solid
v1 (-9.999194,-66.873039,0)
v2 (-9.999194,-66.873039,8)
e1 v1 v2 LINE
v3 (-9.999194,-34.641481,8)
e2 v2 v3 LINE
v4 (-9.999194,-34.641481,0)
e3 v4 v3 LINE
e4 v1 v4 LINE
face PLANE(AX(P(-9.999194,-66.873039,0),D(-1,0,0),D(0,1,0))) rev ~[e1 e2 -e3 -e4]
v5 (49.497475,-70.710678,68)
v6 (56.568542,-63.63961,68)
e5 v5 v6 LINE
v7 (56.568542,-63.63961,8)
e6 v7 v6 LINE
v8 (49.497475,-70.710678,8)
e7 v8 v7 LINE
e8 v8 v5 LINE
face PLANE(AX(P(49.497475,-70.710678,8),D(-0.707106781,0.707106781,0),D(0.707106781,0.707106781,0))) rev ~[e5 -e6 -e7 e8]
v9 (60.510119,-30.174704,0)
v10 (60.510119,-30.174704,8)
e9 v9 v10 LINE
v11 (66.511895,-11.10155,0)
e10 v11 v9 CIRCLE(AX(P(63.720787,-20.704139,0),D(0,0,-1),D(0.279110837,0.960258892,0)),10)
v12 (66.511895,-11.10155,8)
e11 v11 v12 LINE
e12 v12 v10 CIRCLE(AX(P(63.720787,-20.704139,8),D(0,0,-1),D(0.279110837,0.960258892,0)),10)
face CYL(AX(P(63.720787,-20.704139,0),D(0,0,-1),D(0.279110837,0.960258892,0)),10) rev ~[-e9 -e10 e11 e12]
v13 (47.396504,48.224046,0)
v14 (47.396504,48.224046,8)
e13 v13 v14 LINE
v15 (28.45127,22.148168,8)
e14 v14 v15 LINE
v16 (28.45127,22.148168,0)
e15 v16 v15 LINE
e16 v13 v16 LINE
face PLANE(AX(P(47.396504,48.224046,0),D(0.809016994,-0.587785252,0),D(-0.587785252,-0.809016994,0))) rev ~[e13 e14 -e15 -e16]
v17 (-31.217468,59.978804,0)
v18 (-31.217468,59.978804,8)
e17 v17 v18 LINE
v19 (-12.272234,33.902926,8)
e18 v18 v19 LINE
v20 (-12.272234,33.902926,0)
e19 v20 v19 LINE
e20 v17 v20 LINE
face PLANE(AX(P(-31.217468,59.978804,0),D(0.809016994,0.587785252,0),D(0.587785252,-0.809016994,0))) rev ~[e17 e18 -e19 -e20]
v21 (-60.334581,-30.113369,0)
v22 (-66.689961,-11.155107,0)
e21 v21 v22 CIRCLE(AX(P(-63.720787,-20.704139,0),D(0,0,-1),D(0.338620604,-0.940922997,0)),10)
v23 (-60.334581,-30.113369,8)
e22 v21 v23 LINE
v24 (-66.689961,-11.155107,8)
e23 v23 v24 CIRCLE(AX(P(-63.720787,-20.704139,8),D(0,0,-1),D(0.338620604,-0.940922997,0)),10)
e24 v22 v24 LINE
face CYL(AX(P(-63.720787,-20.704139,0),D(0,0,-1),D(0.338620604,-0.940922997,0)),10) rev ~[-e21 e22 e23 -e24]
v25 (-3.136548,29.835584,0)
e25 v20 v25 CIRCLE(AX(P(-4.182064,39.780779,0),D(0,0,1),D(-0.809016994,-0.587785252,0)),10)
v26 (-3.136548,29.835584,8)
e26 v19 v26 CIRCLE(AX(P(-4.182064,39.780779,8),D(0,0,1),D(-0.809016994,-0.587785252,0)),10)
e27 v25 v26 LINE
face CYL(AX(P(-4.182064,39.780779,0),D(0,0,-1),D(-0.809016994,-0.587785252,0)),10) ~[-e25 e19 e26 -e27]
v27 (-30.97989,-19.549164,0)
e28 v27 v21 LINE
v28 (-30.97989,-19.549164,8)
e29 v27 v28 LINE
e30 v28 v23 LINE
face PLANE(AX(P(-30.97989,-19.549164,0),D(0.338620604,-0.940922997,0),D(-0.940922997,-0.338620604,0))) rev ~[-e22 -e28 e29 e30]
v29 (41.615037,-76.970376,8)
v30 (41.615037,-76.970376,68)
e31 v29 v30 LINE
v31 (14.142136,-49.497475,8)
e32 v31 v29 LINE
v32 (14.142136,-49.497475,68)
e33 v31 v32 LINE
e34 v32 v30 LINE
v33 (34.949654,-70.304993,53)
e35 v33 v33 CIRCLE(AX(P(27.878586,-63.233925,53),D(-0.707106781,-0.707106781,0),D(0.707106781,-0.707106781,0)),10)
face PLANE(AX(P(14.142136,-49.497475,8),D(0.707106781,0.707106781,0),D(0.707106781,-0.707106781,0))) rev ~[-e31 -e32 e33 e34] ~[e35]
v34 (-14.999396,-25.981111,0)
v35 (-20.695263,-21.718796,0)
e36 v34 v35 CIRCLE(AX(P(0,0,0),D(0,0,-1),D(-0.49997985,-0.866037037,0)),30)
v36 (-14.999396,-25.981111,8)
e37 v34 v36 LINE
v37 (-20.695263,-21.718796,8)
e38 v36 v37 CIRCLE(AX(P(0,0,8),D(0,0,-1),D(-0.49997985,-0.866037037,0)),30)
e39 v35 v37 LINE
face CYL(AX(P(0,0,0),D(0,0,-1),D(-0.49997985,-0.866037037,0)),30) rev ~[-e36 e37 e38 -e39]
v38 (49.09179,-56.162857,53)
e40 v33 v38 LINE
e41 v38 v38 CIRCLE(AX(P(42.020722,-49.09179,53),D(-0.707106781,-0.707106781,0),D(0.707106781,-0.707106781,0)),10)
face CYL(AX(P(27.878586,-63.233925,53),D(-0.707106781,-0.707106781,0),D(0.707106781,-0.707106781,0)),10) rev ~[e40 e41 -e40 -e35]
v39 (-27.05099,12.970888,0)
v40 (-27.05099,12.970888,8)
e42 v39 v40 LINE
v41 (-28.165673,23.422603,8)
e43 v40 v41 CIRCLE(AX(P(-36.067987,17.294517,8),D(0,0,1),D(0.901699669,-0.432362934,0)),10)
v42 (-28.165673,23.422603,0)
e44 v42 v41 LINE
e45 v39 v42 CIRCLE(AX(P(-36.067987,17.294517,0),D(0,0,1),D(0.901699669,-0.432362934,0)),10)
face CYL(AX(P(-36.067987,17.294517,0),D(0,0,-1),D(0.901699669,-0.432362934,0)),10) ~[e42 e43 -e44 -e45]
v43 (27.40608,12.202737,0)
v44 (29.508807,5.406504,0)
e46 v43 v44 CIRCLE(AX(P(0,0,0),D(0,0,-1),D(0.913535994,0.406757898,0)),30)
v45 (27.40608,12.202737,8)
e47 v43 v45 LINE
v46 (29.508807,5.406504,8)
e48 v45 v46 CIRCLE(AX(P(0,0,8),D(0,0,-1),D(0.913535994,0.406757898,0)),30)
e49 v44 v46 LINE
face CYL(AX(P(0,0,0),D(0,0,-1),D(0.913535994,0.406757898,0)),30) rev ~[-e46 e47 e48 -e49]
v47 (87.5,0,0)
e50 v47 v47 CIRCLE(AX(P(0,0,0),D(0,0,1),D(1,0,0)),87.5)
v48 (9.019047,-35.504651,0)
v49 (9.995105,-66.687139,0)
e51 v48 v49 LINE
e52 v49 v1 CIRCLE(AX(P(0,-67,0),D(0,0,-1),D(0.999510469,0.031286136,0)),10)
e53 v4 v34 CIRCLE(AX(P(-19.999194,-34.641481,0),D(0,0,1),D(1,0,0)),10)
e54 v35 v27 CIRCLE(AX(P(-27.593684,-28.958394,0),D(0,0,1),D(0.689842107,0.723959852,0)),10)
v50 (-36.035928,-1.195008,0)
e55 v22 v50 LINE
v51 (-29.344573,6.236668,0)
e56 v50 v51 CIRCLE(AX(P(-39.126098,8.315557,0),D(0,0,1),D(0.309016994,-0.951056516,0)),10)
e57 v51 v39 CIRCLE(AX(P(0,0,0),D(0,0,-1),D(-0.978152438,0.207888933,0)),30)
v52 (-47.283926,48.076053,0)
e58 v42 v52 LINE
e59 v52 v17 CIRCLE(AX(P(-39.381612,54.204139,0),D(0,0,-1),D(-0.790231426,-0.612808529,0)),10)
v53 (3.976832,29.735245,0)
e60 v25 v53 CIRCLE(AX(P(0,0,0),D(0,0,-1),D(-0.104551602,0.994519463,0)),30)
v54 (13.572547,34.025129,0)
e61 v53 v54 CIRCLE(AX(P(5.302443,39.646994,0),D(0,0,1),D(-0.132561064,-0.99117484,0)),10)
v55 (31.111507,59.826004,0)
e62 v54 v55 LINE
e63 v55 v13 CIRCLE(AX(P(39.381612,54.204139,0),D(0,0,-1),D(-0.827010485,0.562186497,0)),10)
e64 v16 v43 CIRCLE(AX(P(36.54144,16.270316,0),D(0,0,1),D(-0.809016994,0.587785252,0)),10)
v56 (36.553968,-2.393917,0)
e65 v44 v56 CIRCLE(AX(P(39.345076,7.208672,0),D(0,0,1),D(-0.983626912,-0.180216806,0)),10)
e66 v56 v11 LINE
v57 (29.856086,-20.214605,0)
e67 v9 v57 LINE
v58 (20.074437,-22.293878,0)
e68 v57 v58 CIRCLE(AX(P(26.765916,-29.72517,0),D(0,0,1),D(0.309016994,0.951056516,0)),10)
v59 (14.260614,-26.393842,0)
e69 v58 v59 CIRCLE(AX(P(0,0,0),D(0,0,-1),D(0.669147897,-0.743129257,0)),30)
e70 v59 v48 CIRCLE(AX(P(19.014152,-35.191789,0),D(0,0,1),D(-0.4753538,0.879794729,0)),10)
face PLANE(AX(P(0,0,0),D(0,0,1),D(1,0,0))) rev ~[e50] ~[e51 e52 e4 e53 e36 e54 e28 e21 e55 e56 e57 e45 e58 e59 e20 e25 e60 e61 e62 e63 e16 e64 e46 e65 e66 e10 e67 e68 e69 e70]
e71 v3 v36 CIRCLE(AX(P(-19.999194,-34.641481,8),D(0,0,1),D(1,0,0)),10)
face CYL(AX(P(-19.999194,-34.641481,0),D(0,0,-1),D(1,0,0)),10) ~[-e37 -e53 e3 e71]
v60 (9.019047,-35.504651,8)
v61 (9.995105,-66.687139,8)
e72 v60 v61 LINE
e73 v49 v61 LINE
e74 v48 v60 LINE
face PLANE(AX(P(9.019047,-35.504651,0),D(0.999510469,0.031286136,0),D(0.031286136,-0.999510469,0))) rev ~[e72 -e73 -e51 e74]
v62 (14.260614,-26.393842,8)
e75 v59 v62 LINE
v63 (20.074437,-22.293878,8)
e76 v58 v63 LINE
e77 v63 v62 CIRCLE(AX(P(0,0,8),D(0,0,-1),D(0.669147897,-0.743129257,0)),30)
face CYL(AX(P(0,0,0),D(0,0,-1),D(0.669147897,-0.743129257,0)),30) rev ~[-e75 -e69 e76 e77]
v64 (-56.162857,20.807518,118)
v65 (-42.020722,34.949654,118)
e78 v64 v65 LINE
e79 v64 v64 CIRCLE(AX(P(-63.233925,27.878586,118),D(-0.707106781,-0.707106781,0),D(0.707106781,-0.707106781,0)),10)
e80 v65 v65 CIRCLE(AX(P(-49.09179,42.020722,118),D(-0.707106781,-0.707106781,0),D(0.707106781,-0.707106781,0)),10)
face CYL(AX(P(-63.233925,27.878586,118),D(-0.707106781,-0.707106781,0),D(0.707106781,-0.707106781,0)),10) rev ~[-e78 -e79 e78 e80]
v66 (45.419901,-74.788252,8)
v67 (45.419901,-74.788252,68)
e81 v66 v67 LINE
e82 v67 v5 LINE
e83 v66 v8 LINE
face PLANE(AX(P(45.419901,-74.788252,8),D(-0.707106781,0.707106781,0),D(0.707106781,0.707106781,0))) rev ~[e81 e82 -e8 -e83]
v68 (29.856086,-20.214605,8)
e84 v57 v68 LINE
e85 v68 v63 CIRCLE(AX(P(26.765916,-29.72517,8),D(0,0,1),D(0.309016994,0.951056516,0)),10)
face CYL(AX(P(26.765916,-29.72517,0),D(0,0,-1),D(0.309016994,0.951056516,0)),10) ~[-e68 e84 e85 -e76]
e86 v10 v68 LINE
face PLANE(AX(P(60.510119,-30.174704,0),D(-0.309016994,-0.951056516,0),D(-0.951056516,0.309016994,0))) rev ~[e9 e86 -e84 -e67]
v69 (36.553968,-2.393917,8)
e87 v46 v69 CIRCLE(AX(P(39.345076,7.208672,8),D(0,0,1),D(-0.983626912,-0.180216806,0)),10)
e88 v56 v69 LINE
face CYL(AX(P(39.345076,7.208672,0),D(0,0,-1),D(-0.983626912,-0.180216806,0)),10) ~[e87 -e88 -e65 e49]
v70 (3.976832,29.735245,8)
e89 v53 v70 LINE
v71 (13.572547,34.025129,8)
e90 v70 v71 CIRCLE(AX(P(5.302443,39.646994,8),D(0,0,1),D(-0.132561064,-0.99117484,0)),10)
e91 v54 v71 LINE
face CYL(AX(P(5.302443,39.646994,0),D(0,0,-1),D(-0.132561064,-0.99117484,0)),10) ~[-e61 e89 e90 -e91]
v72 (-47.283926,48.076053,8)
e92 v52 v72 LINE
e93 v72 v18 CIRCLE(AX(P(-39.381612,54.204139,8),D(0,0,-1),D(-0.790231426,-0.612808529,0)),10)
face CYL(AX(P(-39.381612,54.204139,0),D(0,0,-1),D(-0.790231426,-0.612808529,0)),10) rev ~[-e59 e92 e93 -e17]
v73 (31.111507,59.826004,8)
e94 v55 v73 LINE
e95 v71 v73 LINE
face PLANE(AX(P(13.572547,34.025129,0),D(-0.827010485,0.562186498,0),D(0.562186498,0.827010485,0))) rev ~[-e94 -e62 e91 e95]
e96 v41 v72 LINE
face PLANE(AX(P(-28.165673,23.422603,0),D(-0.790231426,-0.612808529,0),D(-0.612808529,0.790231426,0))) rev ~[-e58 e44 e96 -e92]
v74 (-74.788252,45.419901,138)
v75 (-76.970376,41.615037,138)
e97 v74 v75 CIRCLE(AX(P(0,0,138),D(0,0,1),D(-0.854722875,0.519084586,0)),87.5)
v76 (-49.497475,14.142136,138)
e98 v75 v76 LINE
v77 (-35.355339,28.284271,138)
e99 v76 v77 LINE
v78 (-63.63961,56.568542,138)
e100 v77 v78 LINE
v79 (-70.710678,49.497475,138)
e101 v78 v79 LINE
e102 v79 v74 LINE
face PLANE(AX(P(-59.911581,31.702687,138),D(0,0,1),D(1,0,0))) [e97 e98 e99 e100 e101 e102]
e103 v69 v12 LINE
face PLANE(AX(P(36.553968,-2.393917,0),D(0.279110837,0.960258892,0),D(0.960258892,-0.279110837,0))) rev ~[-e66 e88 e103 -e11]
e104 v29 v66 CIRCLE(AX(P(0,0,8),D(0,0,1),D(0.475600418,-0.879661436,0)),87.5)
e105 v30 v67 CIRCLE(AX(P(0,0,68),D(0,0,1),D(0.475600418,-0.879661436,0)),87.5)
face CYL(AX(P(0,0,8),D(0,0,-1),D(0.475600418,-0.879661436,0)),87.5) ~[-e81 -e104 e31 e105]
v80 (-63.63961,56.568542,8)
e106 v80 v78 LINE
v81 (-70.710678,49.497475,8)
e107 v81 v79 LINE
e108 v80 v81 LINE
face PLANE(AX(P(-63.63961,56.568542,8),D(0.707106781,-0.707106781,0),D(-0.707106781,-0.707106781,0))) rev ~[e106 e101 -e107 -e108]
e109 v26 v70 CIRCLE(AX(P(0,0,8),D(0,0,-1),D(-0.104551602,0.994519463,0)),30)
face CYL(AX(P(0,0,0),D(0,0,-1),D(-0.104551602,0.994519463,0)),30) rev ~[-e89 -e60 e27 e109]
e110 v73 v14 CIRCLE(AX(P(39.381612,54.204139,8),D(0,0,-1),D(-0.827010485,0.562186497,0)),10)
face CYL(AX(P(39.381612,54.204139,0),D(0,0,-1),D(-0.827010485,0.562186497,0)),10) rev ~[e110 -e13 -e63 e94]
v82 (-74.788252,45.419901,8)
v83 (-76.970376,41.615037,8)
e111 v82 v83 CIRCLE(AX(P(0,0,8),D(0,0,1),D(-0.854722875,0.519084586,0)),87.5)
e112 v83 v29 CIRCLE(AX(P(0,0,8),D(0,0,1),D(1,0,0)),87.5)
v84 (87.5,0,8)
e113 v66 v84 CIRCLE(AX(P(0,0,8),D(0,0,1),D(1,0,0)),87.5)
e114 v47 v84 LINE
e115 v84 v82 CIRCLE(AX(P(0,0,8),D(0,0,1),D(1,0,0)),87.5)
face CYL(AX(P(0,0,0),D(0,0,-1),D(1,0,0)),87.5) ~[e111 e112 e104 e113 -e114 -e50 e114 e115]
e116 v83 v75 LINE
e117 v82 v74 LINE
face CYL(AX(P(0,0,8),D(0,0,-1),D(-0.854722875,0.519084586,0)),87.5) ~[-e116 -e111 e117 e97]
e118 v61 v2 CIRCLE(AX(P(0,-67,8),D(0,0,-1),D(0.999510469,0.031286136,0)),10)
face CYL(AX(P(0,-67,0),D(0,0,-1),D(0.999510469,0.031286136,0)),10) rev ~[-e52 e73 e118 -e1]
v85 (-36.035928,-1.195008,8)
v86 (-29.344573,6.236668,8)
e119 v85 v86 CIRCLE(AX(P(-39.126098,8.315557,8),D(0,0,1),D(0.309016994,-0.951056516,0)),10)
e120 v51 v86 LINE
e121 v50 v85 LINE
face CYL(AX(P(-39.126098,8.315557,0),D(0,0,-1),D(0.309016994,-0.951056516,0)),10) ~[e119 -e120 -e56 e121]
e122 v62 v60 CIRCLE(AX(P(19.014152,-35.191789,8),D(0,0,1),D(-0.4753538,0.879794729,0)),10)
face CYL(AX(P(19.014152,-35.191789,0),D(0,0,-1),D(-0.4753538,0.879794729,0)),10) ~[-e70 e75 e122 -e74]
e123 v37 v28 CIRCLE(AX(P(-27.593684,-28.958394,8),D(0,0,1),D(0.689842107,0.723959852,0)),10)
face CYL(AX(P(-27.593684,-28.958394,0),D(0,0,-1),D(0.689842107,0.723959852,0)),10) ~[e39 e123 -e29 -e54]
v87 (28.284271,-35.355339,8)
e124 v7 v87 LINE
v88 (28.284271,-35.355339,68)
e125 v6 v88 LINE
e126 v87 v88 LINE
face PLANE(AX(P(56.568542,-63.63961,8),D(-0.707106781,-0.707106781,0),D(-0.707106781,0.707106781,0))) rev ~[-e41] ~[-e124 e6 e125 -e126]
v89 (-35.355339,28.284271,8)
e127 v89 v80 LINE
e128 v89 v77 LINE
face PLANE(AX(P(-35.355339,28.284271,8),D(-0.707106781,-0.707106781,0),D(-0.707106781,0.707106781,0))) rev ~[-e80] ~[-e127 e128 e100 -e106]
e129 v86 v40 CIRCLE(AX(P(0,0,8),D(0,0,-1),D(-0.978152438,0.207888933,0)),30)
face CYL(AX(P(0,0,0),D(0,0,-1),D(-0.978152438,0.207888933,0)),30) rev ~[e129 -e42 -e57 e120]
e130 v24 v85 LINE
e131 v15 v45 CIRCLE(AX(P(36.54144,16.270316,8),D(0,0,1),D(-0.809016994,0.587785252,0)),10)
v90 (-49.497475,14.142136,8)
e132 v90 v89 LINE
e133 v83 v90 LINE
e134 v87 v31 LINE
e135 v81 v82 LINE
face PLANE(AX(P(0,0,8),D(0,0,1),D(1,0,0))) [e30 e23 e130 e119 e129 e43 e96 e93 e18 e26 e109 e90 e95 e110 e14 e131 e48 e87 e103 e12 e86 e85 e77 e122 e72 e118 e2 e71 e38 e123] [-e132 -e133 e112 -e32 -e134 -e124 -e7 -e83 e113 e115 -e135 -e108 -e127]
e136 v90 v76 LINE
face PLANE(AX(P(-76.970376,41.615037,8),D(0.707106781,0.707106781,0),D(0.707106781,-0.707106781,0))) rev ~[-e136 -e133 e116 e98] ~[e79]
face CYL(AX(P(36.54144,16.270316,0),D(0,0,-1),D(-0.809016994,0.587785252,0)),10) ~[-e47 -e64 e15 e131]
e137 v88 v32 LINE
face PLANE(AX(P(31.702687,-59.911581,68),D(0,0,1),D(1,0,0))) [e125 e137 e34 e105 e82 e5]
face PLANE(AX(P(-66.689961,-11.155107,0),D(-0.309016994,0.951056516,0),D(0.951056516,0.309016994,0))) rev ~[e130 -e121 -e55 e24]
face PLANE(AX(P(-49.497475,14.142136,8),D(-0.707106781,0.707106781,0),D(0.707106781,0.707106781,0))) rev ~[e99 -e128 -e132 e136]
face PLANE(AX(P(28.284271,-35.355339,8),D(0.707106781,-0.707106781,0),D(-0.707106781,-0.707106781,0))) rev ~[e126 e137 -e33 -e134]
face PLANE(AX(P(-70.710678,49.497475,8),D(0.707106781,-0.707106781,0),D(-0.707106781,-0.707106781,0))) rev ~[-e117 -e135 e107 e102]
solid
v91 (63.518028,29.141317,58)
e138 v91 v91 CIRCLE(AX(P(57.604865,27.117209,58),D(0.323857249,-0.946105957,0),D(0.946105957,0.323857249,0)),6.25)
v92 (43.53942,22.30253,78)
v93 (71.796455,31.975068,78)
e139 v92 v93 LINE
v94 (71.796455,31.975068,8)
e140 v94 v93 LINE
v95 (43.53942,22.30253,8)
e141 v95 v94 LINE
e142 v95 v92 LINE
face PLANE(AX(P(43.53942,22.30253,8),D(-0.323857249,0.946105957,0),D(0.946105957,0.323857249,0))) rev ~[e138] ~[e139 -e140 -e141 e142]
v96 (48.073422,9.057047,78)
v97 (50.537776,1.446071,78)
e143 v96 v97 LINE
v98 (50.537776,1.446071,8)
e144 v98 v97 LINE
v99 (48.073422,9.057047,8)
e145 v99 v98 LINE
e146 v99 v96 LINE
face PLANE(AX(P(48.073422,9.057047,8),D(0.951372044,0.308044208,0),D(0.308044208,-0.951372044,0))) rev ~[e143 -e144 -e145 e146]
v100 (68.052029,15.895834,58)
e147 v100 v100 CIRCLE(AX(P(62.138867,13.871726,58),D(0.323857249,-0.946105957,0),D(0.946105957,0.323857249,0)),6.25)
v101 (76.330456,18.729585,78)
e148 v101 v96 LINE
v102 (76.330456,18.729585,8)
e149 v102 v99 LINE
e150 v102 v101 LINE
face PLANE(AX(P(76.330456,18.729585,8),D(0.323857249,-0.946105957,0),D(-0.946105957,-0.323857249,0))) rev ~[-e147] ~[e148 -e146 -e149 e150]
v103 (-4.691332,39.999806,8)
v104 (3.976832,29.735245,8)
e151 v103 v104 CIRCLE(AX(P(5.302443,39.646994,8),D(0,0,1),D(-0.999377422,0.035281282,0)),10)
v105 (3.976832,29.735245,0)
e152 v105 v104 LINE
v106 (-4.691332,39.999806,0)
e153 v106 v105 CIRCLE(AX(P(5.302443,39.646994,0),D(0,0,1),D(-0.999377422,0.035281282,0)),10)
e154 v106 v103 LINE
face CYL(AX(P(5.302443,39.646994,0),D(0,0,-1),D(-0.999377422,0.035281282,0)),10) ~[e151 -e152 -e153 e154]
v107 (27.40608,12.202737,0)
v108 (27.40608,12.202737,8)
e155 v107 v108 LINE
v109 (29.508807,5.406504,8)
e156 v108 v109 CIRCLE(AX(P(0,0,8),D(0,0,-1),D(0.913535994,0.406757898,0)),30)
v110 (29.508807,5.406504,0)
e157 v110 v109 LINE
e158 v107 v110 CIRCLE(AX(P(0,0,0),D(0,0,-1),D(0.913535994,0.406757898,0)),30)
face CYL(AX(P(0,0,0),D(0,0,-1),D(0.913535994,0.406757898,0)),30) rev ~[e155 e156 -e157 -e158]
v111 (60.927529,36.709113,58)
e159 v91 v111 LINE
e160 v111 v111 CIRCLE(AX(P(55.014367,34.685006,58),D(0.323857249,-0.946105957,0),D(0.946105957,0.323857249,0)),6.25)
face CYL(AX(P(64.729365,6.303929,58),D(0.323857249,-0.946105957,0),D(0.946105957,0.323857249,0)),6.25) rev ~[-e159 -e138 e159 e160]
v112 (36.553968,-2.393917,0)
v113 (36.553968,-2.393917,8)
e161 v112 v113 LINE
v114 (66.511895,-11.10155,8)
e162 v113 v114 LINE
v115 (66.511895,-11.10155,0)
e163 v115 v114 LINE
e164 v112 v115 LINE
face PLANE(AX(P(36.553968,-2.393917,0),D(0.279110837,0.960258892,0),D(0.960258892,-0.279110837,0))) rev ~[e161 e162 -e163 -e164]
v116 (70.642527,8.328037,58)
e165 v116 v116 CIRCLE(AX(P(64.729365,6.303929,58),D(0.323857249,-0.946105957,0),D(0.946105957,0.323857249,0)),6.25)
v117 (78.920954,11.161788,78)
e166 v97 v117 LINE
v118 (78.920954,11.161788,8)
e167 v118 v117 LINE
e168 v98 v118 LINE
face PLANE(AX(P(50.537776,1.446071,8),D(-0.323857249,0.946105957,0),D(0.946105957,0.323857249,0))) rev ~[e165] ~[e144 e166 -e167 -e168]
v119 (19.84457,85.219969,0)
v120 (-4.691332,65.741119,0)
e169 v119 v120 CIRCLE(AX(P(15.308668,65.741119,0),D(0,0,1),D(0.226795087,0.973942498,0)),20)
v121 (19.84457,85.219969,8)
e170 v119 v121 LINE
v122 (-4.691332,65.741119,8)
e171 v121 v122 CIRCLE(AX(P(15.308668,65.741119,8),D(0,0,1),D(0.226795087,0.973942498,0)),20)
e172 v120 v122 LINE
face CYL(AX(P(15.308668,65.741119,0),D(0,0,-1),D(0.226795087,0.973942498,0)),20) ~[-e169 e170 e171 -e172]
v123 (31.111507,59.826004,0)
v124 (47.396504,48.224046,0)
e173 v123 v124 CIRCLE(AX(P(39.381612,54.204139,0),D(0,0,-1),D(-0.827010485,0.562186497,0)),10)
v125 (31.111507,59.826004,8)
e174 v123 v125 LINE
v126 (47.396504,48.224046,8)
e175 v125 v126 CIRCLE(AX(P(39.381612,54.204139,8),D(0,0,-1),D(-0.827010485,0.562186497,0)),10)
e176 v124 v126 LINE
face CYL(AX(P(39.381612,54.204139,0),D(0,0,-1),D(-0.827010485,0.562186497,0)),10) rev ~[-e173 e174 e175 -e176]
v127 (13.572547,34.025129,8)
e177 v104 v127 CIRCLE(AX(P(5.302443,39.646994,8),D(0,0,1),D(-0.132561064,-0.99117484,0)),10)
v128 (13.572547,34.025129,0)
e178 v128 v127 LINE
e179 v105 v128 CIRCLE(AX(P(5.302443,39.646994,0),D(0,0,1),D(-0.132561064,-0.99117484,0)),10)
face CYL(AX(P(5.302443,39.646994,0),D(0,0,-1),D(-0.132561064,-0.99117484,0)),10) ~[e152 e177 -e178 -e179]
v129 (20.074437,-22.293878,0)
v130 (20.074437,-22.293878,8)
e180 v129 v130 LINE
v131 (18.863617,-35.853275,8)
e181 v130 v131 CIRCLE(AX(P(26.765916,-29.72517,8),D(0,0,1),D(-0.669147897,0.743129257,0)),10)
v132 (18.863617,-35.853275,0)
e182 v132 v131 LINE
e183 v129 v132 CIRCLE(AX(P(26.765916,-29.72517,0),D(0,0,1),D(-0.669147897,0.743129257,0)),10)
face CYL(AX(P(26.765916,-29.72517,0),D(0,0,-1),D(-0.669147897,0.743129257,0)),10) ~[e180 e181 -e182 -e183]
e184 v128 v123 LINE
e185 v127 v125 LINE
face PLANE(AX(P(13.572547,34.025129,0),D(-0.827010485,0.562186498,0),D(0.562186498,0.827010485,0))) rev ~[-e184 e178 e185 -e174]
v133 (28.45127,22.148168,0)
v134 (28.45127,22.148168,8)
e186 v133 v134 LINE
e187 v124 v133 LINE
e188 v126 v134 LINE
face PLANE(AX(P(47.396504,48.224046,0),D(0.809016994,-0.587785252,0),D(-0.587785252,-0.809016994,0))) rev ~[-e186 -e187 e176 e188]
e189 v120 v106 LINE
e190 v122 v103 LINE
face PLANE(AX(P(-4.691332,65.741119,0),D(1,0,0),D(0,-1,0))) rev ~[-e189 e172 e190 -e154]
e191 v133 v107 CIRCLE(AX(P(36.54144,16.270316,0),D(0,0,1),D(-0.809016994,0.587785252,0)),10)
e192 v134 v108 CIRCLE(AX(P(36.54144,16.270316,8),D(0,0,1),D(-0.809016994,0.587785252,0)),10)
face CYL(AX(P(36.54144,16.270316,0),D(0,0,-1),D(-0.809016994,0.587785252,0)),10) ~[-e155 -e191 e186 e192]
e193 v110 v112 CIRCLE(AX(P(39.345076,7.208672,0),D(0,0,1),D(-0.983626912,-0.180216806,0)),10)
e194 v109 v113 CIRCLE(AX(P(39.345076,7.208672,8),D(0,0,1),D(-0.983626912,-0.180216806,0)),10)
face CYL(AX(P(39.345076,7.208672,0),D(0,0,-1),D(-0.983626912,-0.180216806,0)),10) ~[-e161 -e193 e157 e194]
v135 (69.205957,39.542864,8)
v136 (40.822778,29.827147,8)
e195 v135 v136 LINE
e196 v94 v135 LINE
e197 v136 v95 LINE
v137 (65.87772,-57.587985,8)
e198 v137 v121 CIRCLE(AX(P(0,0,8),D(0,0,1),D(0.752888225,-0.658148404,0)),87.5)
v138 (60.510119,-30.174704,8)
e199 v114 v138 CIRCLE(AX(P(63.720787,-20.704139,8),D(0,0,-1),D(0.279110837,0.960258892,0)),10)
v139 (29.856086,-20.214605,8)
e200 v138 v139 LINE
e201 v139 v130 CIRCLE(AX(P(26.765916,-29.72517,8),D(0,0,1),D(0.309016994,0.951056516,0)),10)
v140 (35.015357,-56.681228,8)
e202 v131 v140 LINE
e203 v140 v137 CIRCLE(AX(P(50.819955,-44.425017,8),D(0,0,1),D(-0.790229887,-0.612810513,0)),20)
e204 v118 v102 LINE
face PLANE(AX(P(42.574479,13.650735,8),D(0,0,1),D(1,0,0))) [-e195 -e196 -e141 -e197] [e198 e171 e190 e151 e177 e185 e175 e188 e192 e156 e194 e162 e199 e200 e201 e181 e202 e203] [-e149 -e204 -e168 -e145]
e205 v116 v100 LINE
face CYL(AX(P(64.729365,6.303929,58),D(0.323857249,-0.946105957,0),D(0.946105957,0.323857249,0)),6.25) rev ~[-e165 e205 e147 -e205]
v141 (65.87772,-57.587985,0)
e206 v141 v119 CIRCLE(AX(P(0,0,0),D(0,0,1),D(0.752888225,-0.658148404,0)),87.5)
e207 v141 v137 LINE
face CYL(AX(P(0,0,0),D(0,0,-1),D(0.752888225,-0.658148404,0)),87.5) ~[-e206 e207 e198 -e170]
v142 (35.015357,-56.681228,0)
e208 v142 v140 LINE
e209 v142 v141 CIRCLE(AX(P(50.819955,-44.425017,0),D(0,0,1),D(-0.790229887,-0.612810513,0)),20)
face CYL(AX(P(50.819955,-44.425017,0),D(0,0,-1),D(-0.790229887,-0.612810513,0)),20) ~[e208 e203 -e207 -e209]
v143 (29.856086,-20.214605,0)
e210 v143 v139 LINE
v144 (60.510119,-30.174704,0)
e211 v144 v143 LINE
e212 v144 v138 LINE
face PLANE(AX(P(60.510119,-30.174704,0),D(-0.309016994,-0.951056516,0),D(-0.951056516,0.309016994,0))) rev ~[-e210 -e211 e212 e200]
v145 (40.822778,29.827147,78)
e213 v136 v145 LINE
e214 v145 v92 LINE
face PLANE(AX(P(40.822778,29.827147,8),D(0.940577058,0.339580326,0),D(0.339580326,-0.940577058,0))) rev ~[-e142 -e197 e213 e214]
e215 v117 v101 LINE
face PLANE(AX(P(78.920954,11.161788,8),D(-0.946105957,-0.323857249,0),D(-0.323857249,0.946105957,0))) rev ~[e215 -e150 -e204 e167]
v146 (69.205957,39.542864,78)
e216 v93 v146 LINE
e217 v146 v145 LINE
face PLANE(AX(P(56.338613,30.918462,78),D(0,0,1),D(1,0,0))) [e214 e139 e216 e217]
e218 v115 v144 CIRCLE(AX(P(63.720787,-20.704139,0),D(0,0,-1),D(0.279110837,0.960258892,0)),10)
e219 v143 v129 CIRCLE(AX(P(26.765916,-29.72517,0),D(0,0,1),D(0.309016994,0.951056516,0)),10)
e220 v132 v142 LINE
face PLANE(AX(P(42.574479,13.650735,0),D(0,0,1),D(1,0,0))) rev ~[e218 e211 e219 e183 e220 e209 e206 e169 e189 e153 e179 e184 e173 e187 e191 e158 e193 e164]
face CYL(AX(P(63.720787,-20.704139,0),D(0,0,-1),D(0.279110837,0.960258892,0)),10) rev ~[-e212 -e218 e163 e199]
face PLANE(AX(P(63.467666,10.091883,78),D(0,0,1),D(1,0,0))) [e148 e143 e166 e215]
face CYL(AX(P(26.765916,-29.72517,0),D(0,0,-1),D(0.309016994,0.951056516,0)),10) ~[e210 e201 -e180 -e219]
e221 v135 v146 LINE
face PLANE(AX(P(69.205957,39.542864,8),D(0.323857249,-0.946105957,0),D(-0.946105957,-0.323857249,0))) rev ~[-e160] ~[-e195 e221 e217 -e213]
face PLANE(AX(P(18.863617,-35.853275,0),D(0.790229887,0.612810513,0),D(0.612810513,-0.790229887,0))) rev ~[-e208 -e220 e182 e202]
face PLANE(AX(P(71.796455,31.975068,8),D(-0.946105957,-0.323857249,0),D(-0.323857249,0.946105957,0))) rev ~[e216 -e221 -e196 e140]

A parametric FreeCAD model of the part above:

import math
import FreeCAD as App
import Part
import Sketcher

V = App.Vector
Q = App.Units.Quantity


def add_polygon(sketch, points):
    """Adds a closed chain of lines whose ends are joined by coincident constraints."""
    first, n = sketch.GeometryCount, len(points)
    for a, b in zip(points, points[1:] + points[:1]):
        sketch.addGeometry(Part.LineSegment(App.Vector(*a, 0), App.Vector(*b, 0)), False)
    for i in range(n):
        sketch.addConstraint(Sketcher.Constraint("Coincident", first + i, 2, first + (i + 1) % n, 1))

doc = App.newDocument("Part")
body = doc.addObject("PartDesign::Body", "Body")

# Sketch on XY plane
sketch1 = body.newObject("Sketcher::SketchObject", "Sketch")
sketch1.AttachmentSupport = (doc.getObject("XY_Plane"), [""])
sketch1.MapMode = "FlatFace"
sketch1.addGeometry(Part.Circle(V(0, 0, 0), V(0, 0, 1), 87.5), False)
sketch1.addGeometry(Part.LineSegment(V(9.019047, -35.504651, 0), V(9.995105, -66.687139, 0)), False)
sketch1.addGeometry(Part.ArcOfCircle(Part.Circle(V(0, -67, 0), V(0, 0, 1), 10), math.radians(179.272548), math.radians(361.792856)), False)
sketch1.addGeometry(Part.LineSegment(V(-9.999194, -66.873039, 0), V(-9.999194, -34.641481, 0)), False)
sketch1.addGeometry(Part.ArcOfCircle(Part.Circle(V(-19.999194, -34.641481, 0), V(0, 0, 1), 10), math.radians(0), math.radians(60.001333)), False)
sketch1.addGeometry(Part.ArcOfCircle(Part.Circle(V(0, 0, 0), V(0, 0, 1), 30), math.radians(-133.617612), math.radians(-119.998667)), False)
sketch1.addGeometry(Part.ArcOfCircle(Part.Circle(V(-27.593684, -28.958394, 0), V(0, 0, 1), 10), math.radians(46.382388), math.radians(109.792856)), False)
sketch1.addGeometry(Part.LineSegment(V(-30.97989, -19.549164, 0), V(-60.334581, -30.113369, 0)), False)
sketch1.addGeometry(Part.ArcOfCircle(Part.Circle(V(-63.720787, -20.704139, 0), V(0, 0, 1), 10), math.radians(107.272548), math.radians(289.792856)), False)
sketch1.addGeometry(Part.LineSegment(V(-66.689961, -11.155107, 0), V(-36.035928, -1.195008, 0)), False)
sketch1.addGeometry(Part.ArcOfCircle(Part.Circle(V(-39.126098, 8.315557, 0), V(0, 0, 1), 10), math.radians(-72), math.radians(-11.998667)), False)
sketch1.addGeometry(Part.ArcOfCircle(Part.Circle(V(0, 0, 0), V(0, 0, 1), 30), math.radians(154.382388), math.radians(168.001333)), False)
sketch1.addGeometry(Part.ArcOfCircle(Part.Circle(V(-36.067987, 17.294517, 0), V(0, 0, 1), 10), math.radians(-25.617612), math.radians(37.792856)), False)
sketch1.addGeometry(Part.LineSegment(V(-28.165673, 23.422603, 0), V(-47.283926, 48.076053, 0)), False)
sketch1.addGeometry(Part.ArcOfCircle(Part.Circle(V(-39.381612, 54.204139, 0), V(0, 0, 1), 10), math.radians(35.272548), math.radians(217.792856)), False)
sketch1.addGeometry(Part.LineSegment(V(-31.217468, 59.978804, 0), V(-12.272234, 33.902926, 0)), False)
sketch1.addGeometry(Part.ArcOfCircle(Part.Circle(V(-4.182064, 39.780779, 0), V(0, 0, 1), 10), math.radians(-144), math.radians(-83.998667)), False)
sketch1.addGeometry(Part.ArcOfCircle(Part.Circle(V(0, 0, 0), V(0, 0, 1), 30), math.radians(82.382388), math.radians(96.001333)), False)
sketch1.addGeometry(Part.ArcOfCircle(Part.Circle(V(5.302443, 39.646994, 0), V(0, 0, 1), 10), math.radians(-97.617612), math.radians(-34.207144)), False)
sketch1.addGeometry(Part.LineSegment(V(13.572547, 34.025129, 0), V(31.111507, 59.826004, 0)), False)
sketch1.addGeometry(Part.ArcOfCircle(Part.Circle(V(39.381612, 54.204139, 0), V(0, 0, 1), 10), math.radians(-36.727452), math.radians(145.792856)), False)
sketch1.addGeometry(Part.LineSegment(V(47.396504, 48.224046, 0), V(28.45127, 22.148168, 0)), False)
sketch1.addGeometry(Part.ArcOfCircle(Part.Circle(V(36.54144, 16.270316, 0), V(0, 0, 1), 10), math.radians(144), math.radians(204.001333)), False)
sketch1.addGeometry(Part.ArcOfCircle(Part.Circle(V(0, 0, 0), V(0, 0, 1), 30), math.radians(10.382388), math.radians(24.001333)), False)
sketch1.addGeometry(Part.ArcOfCircle(Part.Circle(V(39.345076, 7.208672, 0), V(0, 0, 1), 10), math.radians(-169.617612), math.radians(-106.207144)), False)
sketch1.addGeometry(Part.LineSegment(V(36.553968, -2.393917, 0), V(66.511895, -11.10155, 0)), False)
sketch1.addGeometry(Part.ArcOfCircle(Part.Circle(V(63.720787, -20.704139, 0), V(0, 0, 1), 10), math.radians(-108.727452), math.radians(73.792856)), False)
sketch1.addGeometry(Part.LineSegment(V(60.510119, -30.174704, 0), V(29.856086, -20.214605, 0)), False)
sketch1.addGeometry(Part.ArcOfCircle(Part.Circle(V(26.765916, -29.72517, 0), V(0, 0, 1), 10), math.radians(72), math.radians(132.001333)), False)
sketch1.addGeometry(Part.ArcOfCircle(Part.Circle(V(0, 0, 0), V(0, 0, 1), 30), math.radians(-61.617612), math.radians(-47.998667)), False)
sketch1.addGeometry(Part.ArcOfCircle(Part.Circle(V(19.014152, -35.191789, 0), V(0, 0, 1), 10), math.radians(118.382388), math.radians(181.792856)), False)
sketch1.addConstraint(Sketcher.Constraint("Coincident", 1, 2, 2, 2))
sketch1.addConstraint(Sketcher.Constraint("Coincident", 2, 1, 3, 1))
sketch1.addConstraint(Sketcher.Constraint("Coincident", 3, 2, 4, 1))
sketch1.addConstraint(Sketcher.Constraint("Coincident", 4, 2, 5, 2))
sketch1.addConstraint(Sketcher.Constraint("Coincident", 5, 1, 6, 1))
sketch1.addConstraint(Sketcher.Constraint("Coincident", 6, 2, 7, 1))
sketch1.addConstraint(Sketcher.Constraint("Coincident", 7, 2, 8, 2))
sketch1.addConstraint(Sketcher.Constraint("Coincident", 8, 1, 9, 1))
sketch1.addConstraint(Sketcher.Constraint("Coincident", 9, 2, 10, 1))
sketch1.addConstraint(Sketcher.Constraint("Coincident", 10, 2, 11, 2))
sketch1.addConstraint(Sketcher.Constraint("Coincident", 11, 1, 12, 1))
sketch1.addConstraint(Sketcher.Constraint("Coincident", 12, 2, 13, 1))
sketch1.addConstraint(Sketcher.Constraint("Coincident", 13, 2, 14, 2))
sketch1.addConstraint(Sketcher.Constraint("Coincident", 14, 1, 15, 1))
sketch1.addConstraint(Sketcher.Constraint("Coincident", 15, 2, 16, 1))
sketch1.addConstraint(Sketcher.Constraint("Coincident", 16, 2, 17, 2))
sketch1.addConstraint(Sketcher.Constraint("Coincident", 17, 1, 18, 1))
sketch1.addConstraint(Sketcher.Constraint("Coincident", 18, 2, 19, 1))
sketch1.addConstraint(Sketcher.Constraint("Coincident", 19, 2, 20, 2))
sketch1.addConstraint(Sketcher.Constraint("Coincident", 20, 1, 21, 1))
sketch1.addConstraint(Sketcher.Constraint("Coincident", 21, 2, 22, 1))
sketch1.addConstraint(Sketcher.Constraint("Coincident", 22, 2, 23, 2))
sketch1.addConstraint(Sketcher.Constraint("Coincident", 23, 1, 24, 1))
sketch1.addConstraint(Sketcher.Constraint("Coincident", 24, 2, 25, 1))
sketch1.addConstraint(Sketcher.Constraint("Coincident", 25, 2, 26, 2))
sketch1.addConstraint(Sketcher.Constraint("Coincident", 26, 1, 27, 1))
sketch1.addConstraint(Sketcher.Constraint("Coincident", 27, 2, 28, 1))
sketch1.addConstraint(Sketcher.Constraint("Coincident", 28, 2, 29, 2))
sketch1.addConstraint(Sketcher.Constraint("Coincident", 29, 1, 30, 1))
sketch1.addConstraint(Sketcher.Constraint("Coincident", 30, 2, 1, 1))
sketch1.addConstraint(Sketcher.Constraint("Vertical", 3))
sketch1.addConstraint(Sketcher.Constraint("Coincident", 0, 3, -1, 1))
sketch1.addConstraint(Sketcher.Constraint("Coincident", 5, 3, -1, 1))
sketch1.addConstraint(Sketcher.Constraint("Coincident", 11, 3, -1, 1))
sketch1.addConstraint(Sketcher.Constraint("Coincident", 17, 3, -1, 1))
sketch1.addConstraint(Sketcher.Constraint("Coincident", 23, 3, -1, 1))
sketch1.addConstraint(Sketcher.Constraint("Coincident", 29, 3, -1, 1))
sketch1.addConstraint(Sketcher.Constraint("PointOnObject", 2, 3, -2))
sketch1.addConstraint(Sketcher.Constraint("Diameter", 0, 175.0))
sketch1.addConstraint(Sketcher.Constraint("Radius", 2, 10.0))
sketch1.addConstraint(Sketcher.Constraint("Radius", 4, 10.0))
sketch1.addConstraint(Sketcher.Constraint("Radius", 5, 30.0))
sketch1.addConstraint(Sketcher.Constraint("Radius", 6, 10.0))
sketch1.addConstraint(Sketcher.Constraint("Radius", 8, 10.0))
sketch1.addConstraint(Sketcher.Constraint("Radius", 10, 10.0))
sketch1.addConstraint(Sketcher.Constraint("Radius", 11, 30.0))
sketch1.addConstraint(Sketcher.Constraint("Radius", 12, 10.0))
sketch1.addConstraint(Sketcher.Constraint("Radius", 14, 10.0))
sketch1.addConstraint(Sketcher.Constraint("Radius", 16, 10.0))
sketch1.addConstraint(Sketcher.Constraint("Radius", 17, 30.0))
sketch1.addConstraint(Sketcher.Constraint("Radius", 18, 10.0))
sketch1.addConstraint(Sketcher.Constraint("Radius", 20, 10.0))
sketch1.addConstraint(Sketcher.Constraint("Radius", 22, 10.0))
sketch1.addConstraint(Sketcher.Constraint("Radius", 23, 30.0))
sketch1.addConstraint(Sketcher.Constraint("Radius", 24, 10.0))
sketch1.addConstraint(Sketcher.Constraint("Radius", 26, 10.0))
sketch1.addConstraint(Sketcher.Constraint("Radius", 28, 10.0))
sketch1.addConstraint(Sketcher.Constraint("Radius", 29, 30.0))
sketch1.addConstraint(Sketcher.Constraint("Radius", 30, 10.0))
sketch1.addConstraint(Sketcher.Constraint("DistanceY", 2, 3, -1, 1, 67.0))
sketch1.addConstraint(Sketcher.Constraint("DistanceX", 8, 3, 12, 3, 27.6528))
sketch1.addConstraint(Sketcher.Constraint("DistanceX", 4, 3, 1, 2, 29.994299))
sketch1.addConstraint(Sketcher.Constraint("DistanceY", 2, 1, 1, 2, 0.1859))
sketch1.addConstraint(Sketcher.Constraint("DistanceX", 4, 3, 4, 2, 4.999799))
sketch1.addConstraint(Sketcher.Constraint("DistanceY", 6, 3, 5, 1, 7.239599))
sketch1.addConstraint(Sketcher.Constraint("DistanceX", 10, 2, 12, 2, 1.178901))
sketch1.addConstraint(Sketcher.Constraint("DistanceY", 12, 2, 14, 1, 36.556201))
sketch1.addConstraint(Sketcher.Constraint("DistanceX", 21, 2, 24, 2, 8.102698))
sketch1.addConstraint(Sketcher.Constraint("DistanceX", 29, 1, 28, 3, 12.505302))
sketch1.addConstraint(Sketcher.Constraint("Distance", 1, 31.19776))
sketch1.addConstraint(Sketcher.Constraint("Distance", 7, 31.19776))
sketch1.addConstraint(Sketcher.Constraint("Distance", 13, 31.19776))
sketch1.addConstraint(Sketcher.Constraint("Distance", 19, 31.19776))
sketch1.addConstraint(Sketcher.Constraint("Distance", 25, 31.19776))
sketch1.addConstraint(Sketcher.Constraint("DistanceY", 3, 1, 3, 2, 32.231558))
sketch1.addConstraint(Sketcher.Constraint("DistanceY", 8, 3, -1, 1, 20.704139))
sketch1.addConstraint(Sketcher.Constraint("DistanceX", 14, 3, -1, 1, 39.381612))
sketch1.addConstraint(Sketcher.Constraint("DistanceY", -1, 1, 14, 3, 54.204139))
sketch1.addConstraint(Sketcher.Constraint("DistanceY", -1, 1, 16, 3, 39.780779))
sketch1.addConstraint(Sketcher.Constraint("DistanceX", -1, 1, 20, 3, 39.381612))
sketch1.addConstraint(Sketcher.Constraint("DistanceY", -1, 1, 20, 3, 54.204139))
sketch1.addConstraint(Sketcher.Constraint("DistanceX", -1, 1, 22, 3, 36.54144))
sketch1.addConstraint(Sketcher.Constraint("DistanceY", 26, 3, -1, 1, 20.704139))
sketch1.addConstraint(Sketcher.Constraint("DistanceY", 28, 3, -1, 1, 29.72517))
sketch1.addConstraint(Sketcher.Constraint("DistanceY", 30, 3, -1, 1, 35.191789))
sketch1.addConstraint(Sketcher.Constraint("DistanceX", 6, 2, -1, 1, 30.97989))
sketch1.addConstraint(Sketcher.Constraint("DistanceX", 7, 2, -1, 1, 60.334581))
sketch1.addConstraint(Sketcher.Constraint("DistanceY", 7, 2, -1, 1, 30.113369))
sketch1.addConstraint(Sketcher.Constraint("DistanceX", 8, 1, -1, 1, 66.689961))
sketch1.addConstraint(Sketcher.Constraint("DistanceX", 11, 1, -1, 1, 27.05099))
sketch1.addConstraint(Sketcher.Constraint("DistanceX", 14, 1, -1, 1, 31.217468))
sketch1.addConstraint(Sketcher.Constraint("DistanceX", 16, 2, -1, 1, 3.136548))
sketch1.addConstraint(Sketcher.Constraint("DistanceX", -1, 1, 17, 1, 3.976832))
sketch1.addConstraint(Sketcher.Constraint("DistanceY", -1, 1, 18, 2, 34.025129))
sketch1.addConstraint(Sketcher.Constraint("DistanceX", -1, 1, 21, 2, 28.45127))
sketch1.addConstraint(Sketcher.Constraint("DistanceX", -1, 1, 22, 2, 27.40608))
sketch1.addConstraint(Sketcher.Constraint("DistanceY", 25, 2, -1, 1, 11.10155))
sketch1.addConstraint(Sketcher.Constraint("DistanceX", -1, 1, 26, 1, 60.510119))
sketch1.addConstraint(Sketcher.Constraint("DistanceX", 8, 3, 10, 3, 24.594689))
sketch1.addConstraint(Sketcher.Constraint("DistanceX", 18, 3, 20, 3, 34.079169))
sketch1.addConstraint(Sketcher.Constraint("DistanceX", 24, 3, 26, 3, 24.37571))
sketch1.addConstraint(Sketcher.Constraint("DistanceX", 10, 3, 9, 2, 3.09017))
sketch1.addConstraint(Sketcher.Constraint("DistanceX", 15, 2, 16, 3, 8.09017))
sketch1.addConstraint(Sketcher.Constraint("DistanceY", 22, 3, 20, 1, 31.95373))
sketch1.addConstraint(Sketcher.Constraint("DistanceX", 23, 1, 24, 3, 9.836269))
sketch1.addConstraint(Sketcher.Constraint("DistanceX", 28, 3, 27, 2, 3.09017))
sketch1.addConstraint(Sketcher.Constraint("DistanceX", 28, 2, 28, 3, 6.691479))
pad1 = body.newObject("PartDesign::Pad", "Pad")
pad1.Profile = sketch1
pad1.Length = 8

# Sketch on XY plane
sketch2 = body.newObject("Sketcher::SketchObject", "Sketch001")
sketch2.AttachmentSupport = (doc.getObject("XY_Plane"), [""])
sketch2.MapMode = "FlatFace"
sketch2.AttachmentOffset = App.Placement(V(0, 0, 8), App.Rotation())
sketch2.addGeometry(Part.LineSegment(V(45.419901, -74.788252, 0), V(49.497475, -70.710678, 0)), False)
sketch2.addGeometry(Part.LineSegment(V(49.497475, -70.710678, 0), V(56.568542, -63.63961, 0)), False)
sketch2.addGeometry(Part.LineSegment(V(56.568542, -63.63961, 0), V(28.284271, -35.355339, 0)), False)
sketch2.addGeometry(Part.LineSegment(V(28.284271, -35.355339, 0), V(14.142136, -49.497475, 0)), False)
sketch2.addGeometry(Part.LineSegment(V(14.142136, -49.497475, 0), V(41.615037, -76.970376, 0)), False)
sketch2.addGeometry(Part.ArcOfCircle(Part.Circle(V(0, 0, 0), V(0, 0, 1), 87.5), math.radians(-61.60155), math.radians(-58.729133)), False)
sketch2.addConstraint(Sketcher.Constraint("Coincident", 0, 2, 1, 1))
sketch2.addConstraint(Sketcher.Constraint("Coincident", 1, 2, 2, 1))
sketch2.addConstraint(Sketcher.Constraint("Coincident", 2, 2, 3, 1))
sketch2.addConstraint(Sketcher.Constraint("Coincident", 3, 2, 4, 1))
sketch2.addConstraint(Sketcher.Constraint("Coincident", 4, 2, 5, 1))
sketch2.addConstraint(Sketcher.Constraint("Coincident", 5, 2, 0, 1))
sketch2.addConstraint(Sketcher.Constraint("Coincident", 5, 3, -1, 1))
sketch2.addConstraint(Sketcher.Constraint("Parallel", 0, 1))
sketch2.addConstraint(Sketcher.Constraint("Perpendicular", 1, 2))
sketch2.addConstraint(Sketcher.Constraint("Perpendicular", 2, 3))
sketch2.addConstraint(Sketcher.Constraint("Perpendicular", 3, 4))
sketch2.addConstraint(Sketcher.Constraint("Radius", 5, 87.5))
sketch2.addConstraint(Sketcher.Constraint("Angle", 0, Q("45 deg")))
sketch2.addConstraint(Sketcher.Constraint("Distance", 1, 10.0))
sketch2.addConstraint(Sketcher.Constraint("Distance", 2, 40.0))
sketch2.addConstraint(Sketcher.Constraint("Distance", 3, 20.0))
sketch2.addConstraint(Sketcher.Constraint("DistanceX", -1, 1, 5, 2, 45.419901))
sketch2.addConstraint(Sketcher.Constraint("DistanceX", 3, 2, 4, 2, 27.472901))
pad2 = body.newObject("PartDesign::Pad", "Pad001")
pad2.Profile = sketch2
pad2.Length = 60

# Sketch on XY plane
sketch3 = body.newObject("Sketcher::SketchObject", "Sketch002")
sketch3.AttachmentSupport = (doc.getObject("XY_Plane"), [""])
sketch3.MapMode = "FlatFace"
sketch3.AttachmentOffset = App.Placement(V(0, 0, 8), App.Rotation())
sketch3.addGeometry(Part.ArcOfCircle(Part.Circle(V(0, 0, 0), V(0, 0, 1), 87.5), math.radians(148.729133), math.radians(151.60155)), False)
sketch3.addGeometry(Part.LineSegment(V(-76.970376, 41.615037, 0), V(-49.497475, 14.142136, 0)), False)
sketch3.addGeometry(Part.LineSegment(V(-49.497475, 14.142136, 0), V(-35.355339, 28.284271, 0)), False)
sketch3.addGeometry(Part.LineSegment(V(-35.355339, 28.284271, 0), V(-63.63961, 56.568542, 0)), False)
sketch3.addGeometry(Part.LineSegment(V(-63.63961, 56.568542, 0), V(-70.710678, 49.497475, 0)), False)
sketch3.addGeometry(Part.LineSegment(V(-70.710678, 49.497475, 0), V(-74.788252, 45.419901, 0)), False)
sketch3.addConstraint(Sketcher.Constraint("Coincident", 0, 2, 1, 1))
sketch3.addConstraint(Sketcher.Constraint("Coincident", 1, 2, 2, 1))
sketch3.addConstraint(Sketcher.Constraint("Coincident", 2, 2, 3, 1))
sketch3.addConstraint(Sketcher.Constraint("Coincident", 3, 2, 4, 1))
sketch3.addConstraint(Sketcher.Constraint("Coincident", 4, 2, 5, 1))
sketch3.addConstraint(Sketcher.Constraint("Coincident", 5, 2, 0, 1))
sketch3.addConstraint(Sketcher.Constraint("Coincident", 0, 3, -1, 1))
sketch3.addConstraint(Sketcher.Constraint("Perpendicular", 1, 2))
sketch3.addConstraint(Sketcher.Constraint("Perpendicular", 2, 3))
sketch3.addConstraint(Sketcher.Constraint("Perpendicular", 3, 4))
sketch3.addConstraint(Sketcher.Constraint("Parallel", 4, 5))
sketch3.addConstraint(Sketcher.Constraint("Radius", 0, 87.5))
sketch3.addConstraint(Sketcher.Constraint("Angle", 1, Q("-45 deg")))
sketch3.addConstraint(Sketcher.Constraint("Distance", 2, 20.0))
sketch3.addConstraint(Sketcher.Constraint("Distance", 3, 40.0))
sketch3.addConstraint(Sketcher.Constraint("Distance", 4, 10.0))
sketch3.addConstraint(Sketcher.Constraint("DistanceY", -1, 1, 5, 2, 45.419901))
sketch3.addConstraint(Sketcher.Constraint("Distance", 1, 38.852549))
pad3 = body.newObject("PartDesign::Pad", "Pad002")
pad3.Profile = sketch3
pad3.Length = 130

# Sketch on an angled plane
sketch4 = body.newObject("Sketcher::SketchObject", "Sketch003")
sketch4.Placement = App.Placement(V(-17.67767, -17.67767, 0), App.Rotation(V(0.707106781, -0.707106781, 0), V(0, 0, 0.999999999), V(-0.707106781, -0.707106781, 0), "ZXY"))
sketch4.addGeometry(Part.Circle(V(-64.426275, 118, 0), V(0, 0, 1), 10), False)
sketch4.addConstraint(Sketcher.Constraint("Diameter", 0, 20.0))
sketch4.addConstraint(Sketcher.Constraint("DistanceY", -1, 1, 0, 3, 118.0))
sketch4.addConstraint(Sketcher.Constraint("DistanceX", 0, 3, -1, 1, 64.426275))
pocket1 = body.newObject("PartDesign::Pocket", "Pocket")
pocket1.Profile = sketch4
pocket1.Type = "ThroughAll"

# Sketch on an angled plane
sketch5 = body.newObject("Sketcher::SketchObject", "Sketch004")
sketch5.Placement = App.Placement(V(-17.67767, -17.67767, 0), App.Rotation(V(0.707106781, -0.707106781, 0), V(0, 0, 0.999999999), V(-0.707106781, -0.707106781, 0), "ZXY"))
sketch5.addGeometry(Part.Circle(V(64.426275, 53, 0), V(0, 0, 1), 10), False)
sketch5.addConstraint(Sketcher.Constraint("Diameter", 0, 20.0))
sketch5.addConstraint(Sketcher.Constraint("DistanceY", -1, 1, 0, 3, 53.0))
sketch5.addConstraint(Sketcher.Constraint("DistanceX", -1, 1, 0, 3, 64.426275))
pocket2 = body.newObject("PartDesign::Pocket", "Pocket001")
pocket2.Profile = sketch5
pocket2.Type = "ThroughAll"
body2 = doc.addObject("PartDesign::Body", "Body001")

# Sketch on XY plane
sketch6 = body2.newObject("Sketcher::SketchObject", "Sketch005")
sketch6.AttachmentSupport = (doc.getObject("XY_Plane001"), [""])
sketch6.MapMode = "FlatFace"
sketch6.addGeometry(Part.ArcOfCircle(Part.Circle(V(50.819955, -44.425017, 0), V(0, 0, 1), 20), math.radians(-142.207), math.radians(-41.158812)), False)
sketch6.addGeometry(Part.ArcOfCircle(Part.Circle(V(0, 0, 0), V(0, 0, 1), 87.5), math.radians(-41.158812), math.radians(76.891542)), False)
sketch6.addGeometry(Part.ArcOfCircle(Part.Circle(V(15.308668, 65.741119, 0), V(0, 0, 1), 20), math.radians(76.891542), math.radians(180)), False)
sketch6.addGeometry(Part.LineSegment(V(-4.691332, 65.741119, 0), V(-4.691332, 39.999806, 0)), False)
sketch6.addGeometry(Part.ArcOfCircle(Part.Circle(V(5.302443, 39.646994, 0), V(0, 0, 1), 10), math.radians(177.978112), math.radians(262.382388)), False)
sketch6.addGeometry(Part.ArcOfCircle(Part.Circle(V(5.302443, 39.646994, 0), V(0, 0, 1), 10), math.radians(-97.617612), math.radians(-34.207144)), False)
sketch6.addGeometry(Part.LineSegment(V(13.572547, 34.025129, 0), V(31.111507, 59.826004, 0)), False)
sketch6.addGeometry(Part.ArcOfCircle(Part.Circle(V(39.381612, 54.204139, 0), V(0, 0, 1), 10), math.radians(-36.727452), math.radians(145.792856)), False)
sketch6.addGeometry(Part.LineSegment(V(47.396504, 48.224046, 0), V(28.45127, 22.148168, 0)), False)
sketch6.addGeometry(Part.ArcOfCircle(Part.Circle(V(36.54144, 16.270316, 0), V(0, 0, 1), 10), math.radians(144), math.radians(204.001333)), False)
sketch6.addGeometry(Part.ArcOfCircle(Part.Circle(V(0, 0, 0), V(0, 0, 1), 30), math.radians(10.382388), math.radians(24.001333)), False)
sketch6.addGeometry(Part.ArcOfCircle(Part.Circle(V(39.345076, 7.208672, 0), V(0, 0, 1), 10), math.radians(-169.617612), math.radians(-106.207144)), False)
sketch6.addGeometry(Part.LineSegment(V(36.553968, -2.393917, 0), V(66.511895, -11.10155, 0)), False)
sketch6.addGeometry(Part.ArcOfCircle(Part.Circle(V(63.720787, -20.704139, 0), V(0, 0, 1), 10), math.radians(-108.727452), math.radians(73.792856)), False)
sketch6.addGeometry(Part.LineSegment(V(60.510119, -30.174704, 0), V(29.856086, -20.214605, 0)), False)
sketch6.addGeometry(Part.ArcOfCircle(Part.Circle(V(26.765916, -29.72517, 0), V(0, 0, 1), 10), math.radians(72), math.radians(132.001333)), False)
sketch6.addGeometry(Part.ArcOfCircle(Part.Circle(V(26.765916, -29.72517, 0), V(0, 0, 1), 10), math.radians(132.001333), math.radians(217.793)), False)
sketch6.addGeometry(Part.LineSegment(V(18.863617, -35.853275, 0), V(35.015357, -56.681228, 0)), False)
sketch6.addConstraint(Sketcher.Constraint("Tangent", 0, 2, 1, 1))
sketch6.addConstraint(Sketcher.Constraint("Tangent", 1, 2, 2, 1))
sketch6.addConstraint(Sketcher.Constraint("Tangent", 2, 2, 3, 1))
sketch6.addConstraint(Sketcher.Constraint("Coincident", 3, 2, 4, 1))
sketch6.addConstraint(Sketcher.Constraint("Tangent", 4, 2, 5, 1))
sketch6.addConstraint(Sketcher.Constraint("Tangent", 5, 2, 6, 1))
sketch6.addConstraint(Sketcher.Constraint("Tangent", 6, 2, 7, 2))
sketch6.addConstraint(Sketcher.Constraint("Coincident", 7, 1, 8, 1))
sketch6.addConstraint(Sketcher.Constraint("Tangent", 8, 2, 9, 1))
sketch6.addConstraint(Sketcher.Constraint("Tangent", 9, 2, 10, 2))
sketch6.addConstraint(Sketcher.Constraint("Tangent", 10, 1, 11, 1))
sketch6.addConstraint(Sketcher.Constraint("Tangent", 11, 2, 12, 1))
sketch6.addConstraint(Sketcher.Constraint("Tangent", 12, 2, 13, 2))
sketch6.addConstraint(Sketcher.Constraint("Coincident", 13, 1, 14, 1))
sketch6.addConstraint(Sketcher.Constraint("Tangent", 14, 2, 15, 1))
sketch6.addConstraint(Sketcher.Constraint("Tangent", 15, 2, 16, 1))
sketch6.addConstraint(Sketcher.Constraint("Tangent", 16, 2, 17, 1))
sketch6.addConstraint(Sketcher.Constraint("Tangent", 17, 2, 0, 1))
sketch6.addConstraint(Sketcher.Constraint("Vertical", 3))
sketch6.addConstraint(Sketcher.Constraint("Coincident", 1, 3, -1, 1))
sketch6.addConstraint(Sketcher.Constraint("Coincident", 10, 3, -1, 1))
sketch6.addConstraint(Sketcher.Constraint("Equal", 0, 2))
sketch6.addConstraint(Sketcher.Constraint("Equal", 4, 5))
sketch6.addConstraint(Sketcher.Constraint("Equal", 5, 7))
sketch6.addConstraint(Sketcher.Constraint("Equal", 7, 9))
sketch6.addConstraint(Sketcher.Constraint("Equal", 9, 11))
sketch6.addConstraint(Sketcher.Constraint("Equal", 11, 13))
sketch6.addConstraint(Sketcher.Constraint("Equal", 13, 15))
sketch6.addConstraint(Sketcher.Constraint("Equal", 15, 16))
sketch6.addConstraint(Sketcher.Constraint("Equal", 6, 12))
sketch6.addConstraint(Sketcher.Constraint("Equal", 8, 14))
sketch6.addConstraint(Sketcher.Constraint("Radius", 0, 20.0))
sketch6.addConstraint(Sketcher.Constraint("Radius", 4, 10.0))
sketch6.addConstraint(Sketcher.Constraint("Radius", 10, 30.0))
sketch6.addConstraint(Sketcher.Constraint("Radius", 1, 87.5))
sketch6.addConstraint(Sketcher.Constraint("Angle", 8, Q("-126 deg")))
sketch6.addConstraint(Sketcher.Constraint("Angle", 14, Q("162 deg")))
sketch6.addConstraint(Sketcher.Constraint("DistanceX", 8, 2, 11, 2, 8.102698))
sketch6.addConstraint(Sketcher.Constraint("DistanceX", 13, 1, 0, 2, 5.367601))
sketch6.addConstraint(Sketcher.Constraint("DistanceX", 16, 2, 15, 3, 7.902299))
sketch6.addConstraint(Sketcher.Constraint("Distance", 6, 31.19776))
sketch6.addConstraint(Sketcher.Constraint("DistanceY", 3, 2, 3, 1, 25.741312))
sketch6.addConstraint(Sketcher.Constraint("DistanceX", -1, 1, 2, 3, 15.308668))
sketch6.addConstraint(Sketcher.Constraint("DistanceX", -1, 1, 7, 3, 39.381612))
sketch6.addConstraint(Sketcher.Constraint("DistanceY", -1, 1, 7, 3, 54.204139))
sketch6.addConstraint(Sketcher.Constraint("DistanceY", 13, 3, -1, 1, 20.704139))
sketch6.addConstraint(Sketcher.Constraint("DistanceY", 15, 3, -1, 1, 29.72517))
sketch6.addConstraint(Sketcher.Constraint("DistanceX", -1, 1, 4, 2, 3.976832))
sketch6.addConstraint(Sketcher.Constraint("DistanceX", 15, 2, 15, 3, 6.691479))
pad4 = body2.newObject("PartDesign::Pad", "Pad003")
pad4.Profile = sketch6
pad4.Length = 8

# Sketch on XY plane
sketch7 = body2.newObject("Sketcher::SketchObject", "Sketch006")
sketch7.AttachmentSupport = (doc.getObject("XY_Plane001"), [""])
sketch7.MapMode = "FlatFace"
sketch7.AttachmentOffset = App.Placement(V(0, 0, 8), App.Rotation())
add_polygon(sketch7, [(40.822778, 29.827147), (43.53942, 22.30253), (71.796455, 31.975068), (69.205957, 39.542864)])  # lines 0-3
add_polygon(sketch7, [(48.073422, 9.057047), (50.537776, 1.446071), (78.920954, 11.161788), (76.330456, 18.729585)])  # lines 4-7
sketch7.addConstraint(Sketcher.Constraint("Perpendicular", 1, 2))
sketch7.addConstraint(Sketcher.Constraint("Perpendicular", 2, 3))
sketch7.addConstraint(Sketcher.Constraint("Parallel", 3, 5))
sketch7.addConstraint(Sketcher.Constraint("Perpendicular", 5, 6))
sketch7.addConstraint(Sketcher.Constraint("Perpendicular", 6, 7))
sketch7.addConstraint(Sketcher.Constraint("Equal", 0, 4))
sketch7.addConstraint(Sketcher.Constraint("Equal", 3, 5))
sketch7.addConstraint(Sketcher.Constraint("Equal", 2, 6))
sketch7.addConstraint(Sketcher.Constraint("Distance", 0, 8.0))
sketch7.addConstraint(Sketcher.Constraint("Distance", 3, 30.0))
sketch7.addConstraint(Sketcher.Constraint("DistanceX", 1, 2, 6, 2, 4.534001))
sketch7.addConstraint(Sketcher.Constraint("DistanceX", 2, 2, 1, 2, 2.590498))
sketch7.addConstraint(Sketcher.Constraint("DistanceY", 7, 2, 3, 2, 20.7701))
sketch7.addConstraint(Sketcher.Constraint("Distance", 1, 29.86667))
sketch7.addConstraint(Sketcher.Constraint("DistanceX", -1, 1, 0, 2, 43.53942))
sketch7.addConstraint(Sketcher.Constraint("DistanceY", -1, 1, 0, 2, 22.30253))
pad5 = body2.newObject("PartDesign::Pad", "Pad004")
pad5.Profile = sketch7
pad5.Length = 70

# Sketch on an angled plane
sketch8 = body2.newObject("Sketcher::SketchObject", "Sketch007")
sketch8.Placement = App.Placement(V(4.857499, -14.190538, 0), App.Rotation(V(0.946105957, 0.323857249, 0), V(0, 0, 1), V(0.323857249, -0.946105957, 0), "ZXY"))
sketch8.addGeometry(Part.Circle(V(63.282411, 58, 0), V(0, 0, 1), 6.25), False)
sketch8.addConstraint(Sketcher.Constraint("Diameter", 0, 12.5))
sketch8.addConstraint(Sketcher.Constraint("DistanceY", -1, 1, 0, 3, 58.0))
sketch8.addConstraint(Sketcher.Constraint("DistanceX", -1, 1, 0, 3, 63.282411))
pocket3 = body2.newObject("PartDesign::Pocket", "Pocket002")
pocket3.Profile = sketch8
pocket3.Type = "ThroughAll"

doc.recompute()
